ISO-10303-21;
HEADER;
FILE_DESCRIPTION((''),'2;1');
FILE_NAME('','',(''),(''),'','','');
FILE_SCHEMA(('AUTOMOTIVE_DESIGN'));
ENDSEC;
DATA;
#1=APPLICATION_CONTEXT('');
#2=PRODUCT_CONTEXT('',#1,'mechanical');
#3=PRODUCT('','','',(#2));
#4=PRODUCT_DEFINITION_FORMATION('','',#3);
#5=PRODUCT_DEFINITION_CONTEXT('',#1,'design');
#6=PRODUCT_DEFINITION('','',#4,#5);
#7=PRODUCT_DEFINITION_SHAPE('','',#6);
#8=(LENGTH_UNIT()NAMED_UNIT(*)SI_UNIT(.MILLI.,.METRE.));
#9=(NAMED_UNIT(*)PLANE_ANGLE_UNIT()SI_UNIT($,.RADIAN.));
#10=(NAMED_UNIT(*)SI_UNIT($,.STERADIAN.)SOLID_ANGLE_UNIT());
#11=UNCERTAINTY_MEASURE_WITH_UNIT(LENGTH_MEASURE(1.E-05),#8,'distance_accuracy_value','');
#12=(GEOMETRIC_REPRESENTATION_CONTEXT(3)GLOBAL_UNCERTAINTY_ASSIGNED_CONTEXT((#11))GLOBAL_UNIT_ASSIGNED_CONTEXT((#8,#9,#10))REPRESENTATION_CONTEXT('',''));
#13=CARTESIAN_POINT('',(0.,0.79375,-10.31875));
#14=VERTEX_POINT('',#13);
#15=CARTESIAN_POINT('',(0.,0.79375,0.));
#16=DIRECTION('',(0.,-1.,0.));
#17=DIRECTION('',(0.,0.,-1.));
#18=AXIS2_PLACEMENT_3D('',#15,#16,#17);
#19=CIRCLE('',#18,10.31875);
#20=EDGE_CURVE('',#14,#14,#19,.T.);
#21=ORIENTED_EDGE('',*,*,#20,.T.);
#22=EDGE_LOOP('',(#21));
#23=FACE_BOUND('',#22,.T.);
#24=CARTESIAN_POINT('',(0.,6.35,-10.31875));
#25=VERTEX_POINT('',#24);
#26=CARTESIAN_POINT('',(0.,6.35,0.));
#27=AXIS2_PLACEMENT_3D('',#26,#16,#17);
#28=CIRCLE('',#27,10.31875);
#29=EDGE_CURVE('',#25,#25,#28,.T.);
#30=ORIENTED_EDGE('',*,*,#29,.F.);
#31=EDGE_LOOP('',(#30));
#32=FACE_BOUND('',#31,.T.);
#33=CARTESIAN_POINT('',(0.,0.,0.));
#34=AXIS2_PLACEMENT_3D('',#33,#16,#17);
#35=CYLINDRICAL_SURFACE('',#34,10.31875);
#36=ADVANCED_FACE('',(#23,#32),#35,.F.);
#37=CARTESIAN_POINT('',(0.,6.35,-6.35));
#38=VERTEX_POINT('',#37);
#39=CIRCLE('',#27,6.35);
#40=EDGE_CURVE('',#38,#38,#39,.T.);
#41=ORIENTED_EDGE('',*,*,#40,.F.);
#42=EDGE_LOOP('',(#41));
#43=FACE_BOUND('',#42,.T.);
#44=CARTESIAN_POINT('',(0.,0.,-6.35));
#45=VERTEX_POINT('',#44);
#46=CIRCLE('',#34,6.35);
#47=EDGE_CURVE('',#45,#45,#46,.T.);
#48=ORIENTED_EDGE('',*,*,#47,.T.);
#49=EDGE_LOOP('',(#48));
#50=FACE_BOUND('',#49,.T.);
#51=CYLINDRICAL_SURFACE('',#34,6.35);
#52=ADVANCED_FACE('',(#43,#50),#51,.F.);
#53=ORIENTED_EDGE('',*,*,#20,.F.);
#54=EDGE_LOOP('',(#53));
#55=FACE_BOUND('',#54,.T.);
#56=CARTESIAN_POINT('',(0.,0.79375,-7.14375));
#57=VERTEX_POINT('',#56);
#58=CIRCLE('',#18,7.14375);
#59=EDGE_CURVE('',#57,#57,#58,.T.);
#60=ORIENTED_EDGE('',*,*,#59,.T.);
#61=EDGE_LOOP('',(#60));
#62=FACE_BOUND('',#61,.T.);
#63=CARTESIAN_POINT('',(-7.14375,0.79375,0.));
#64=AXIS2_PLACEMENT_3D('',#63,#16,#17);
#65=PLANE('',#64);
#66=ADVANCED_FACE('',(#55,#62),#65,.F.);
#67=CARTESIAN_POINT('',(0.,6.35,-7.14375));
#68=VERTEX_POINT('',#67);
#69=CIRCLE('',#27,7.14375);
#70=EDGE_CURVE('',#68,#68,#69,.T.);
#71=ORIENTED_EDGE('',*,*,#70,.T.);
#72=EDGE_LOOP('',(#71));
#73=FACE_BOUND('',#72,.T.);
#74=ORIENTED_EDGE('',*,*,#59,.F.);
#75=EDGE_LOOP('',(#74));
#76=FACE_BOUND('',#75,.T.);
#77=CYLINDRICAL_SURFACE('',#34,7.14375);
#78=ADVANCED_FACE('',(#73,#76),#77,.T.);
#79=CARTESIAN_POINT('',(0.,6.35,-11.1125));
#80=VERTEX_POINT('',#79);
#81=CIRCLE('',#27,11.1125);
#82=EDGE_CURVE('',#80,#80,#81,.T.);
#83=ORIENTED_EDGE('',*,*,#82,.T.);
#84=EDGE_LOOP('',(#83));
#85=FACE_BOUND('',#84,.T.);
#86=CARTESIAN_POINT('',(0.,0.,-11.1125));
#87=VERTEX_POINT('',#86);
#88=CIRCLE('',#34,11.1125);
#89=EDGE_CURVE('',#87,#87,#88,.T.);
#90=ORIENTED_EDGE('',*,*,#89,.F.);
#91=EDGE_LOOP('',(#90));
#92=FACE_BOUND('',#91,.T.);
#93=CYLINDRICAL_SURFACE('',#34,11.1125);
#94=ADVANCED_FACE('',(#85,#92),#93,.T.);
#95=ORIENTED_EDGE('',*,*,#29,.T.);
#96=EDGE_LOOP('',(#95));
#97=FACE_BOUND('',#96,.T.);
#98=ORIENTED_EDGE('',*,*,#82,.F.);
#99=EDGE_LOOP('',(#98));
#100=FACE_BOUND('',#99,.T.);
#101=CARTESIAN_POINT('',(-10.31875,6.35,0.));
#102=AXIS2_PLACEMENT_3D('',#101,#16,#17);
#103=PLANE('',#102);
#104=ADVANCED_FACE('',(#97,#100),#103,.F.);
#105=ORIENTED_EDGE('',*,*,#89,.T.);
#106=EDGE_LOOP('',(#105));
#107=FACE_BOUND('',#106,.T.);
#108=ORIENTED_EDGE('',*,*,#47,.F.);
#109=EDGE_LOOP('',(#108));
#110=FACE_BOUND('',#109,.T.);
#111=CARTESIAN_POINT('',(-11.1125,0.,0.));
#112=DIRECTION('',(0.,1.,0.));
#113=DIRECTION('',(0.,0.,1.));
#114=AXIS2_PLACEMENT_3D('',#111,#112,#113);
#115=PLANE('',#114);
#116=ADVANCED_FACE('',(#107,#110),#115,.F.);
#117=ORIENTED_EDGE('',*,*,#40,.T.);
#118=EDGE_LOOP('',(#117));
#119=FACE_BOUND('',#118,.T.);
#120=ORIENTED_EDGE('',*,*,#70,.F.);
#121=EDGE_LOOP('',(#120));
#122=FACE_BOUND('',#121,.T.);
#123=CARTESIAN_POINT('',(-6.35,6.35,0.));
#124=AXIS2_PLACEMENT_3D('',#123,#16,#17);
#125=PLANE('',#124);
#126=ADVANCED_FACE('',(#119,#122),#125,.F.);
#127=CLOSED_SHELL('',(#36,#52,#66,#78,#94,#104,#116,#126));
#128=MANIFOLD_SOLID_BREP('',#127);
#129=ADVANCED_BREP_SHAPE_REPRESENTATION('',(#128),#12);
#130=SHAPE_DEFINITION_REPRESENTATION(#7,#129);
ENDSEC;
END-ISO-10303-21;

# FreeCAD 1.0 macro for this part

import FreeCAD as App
import Part
import Sketcher

V = App.Vector
Q = App.Units.Quantity


def add_polygon(sketch, points):
    """Adds a closed chain of lines whose ends are joined by coincident constraints."""
    first, n = sketch.GeometryCount, len(points)
    for a, b in zip(points, points[1:] + points[:1]):
        sketch.addGeometry(Part.LineSegment(App.Vector(*a, 0), App.Vector(*b, 0)), False)
    for i in range(n):
        sketch.addConstraint(Sketcher.Constraint("Coincident", first + i, 2, first + (i + 1) % n, 1))

doc = App.newDocument("Part")
body = doc.addObject("PartDesign::Body", "Body")

sketch1 = body.newObject("Sketcher::SketchObject", "Sketch")
sketch1.AttachmentSupport = (doc.getObject("XY_Plane"), [""])
sketch1.MapMode = "FlatFace"
add_polygon(sketch1, [(-11.1, 6.3), (-11.1, 0), (-6.3, 0), (-6.3, 6.3), (-7.1, 6.3), (-7.1, 0.8), (-10.3, 0.8), (-10.3, 6.3)])
sketch1.addConstraint(Sketcher.Constraint("Vertical", 0))
sketch1.addConstraint(Sketcher.Constraint("Horizontal", 1))
sketch1.addConstraint(Sketcher.Constraint("Vertical", 2))
sketch1.addConstraint(Sketcher.Constraint("Horizontal", 3))
sketch1.addConstraint(Sketcher.Constraint("Vertical", 4))
sketch1.addConstraint(Sketcher.Constraint("Horizontal", 5))
sketch1.addConstraint(Sketcher.Constraint("Vertical", 6))
sketch1.addConstraint(Sketcher.Constraint("Horizontal", 7))
sketch1.addConstraint(Sketcher.Constraint("PointOnObject", 0, 2, -1))
sketch1.addConstraint(Sketcher.Constraint("Horizontal", 3, 2, 6, 2))
sketch1.addConstraint(Sketcher.Constraint("Equal", 3, 7))
sketch1.addConstraint(Sketcher.Constraint("DistanceY", 0, 2, 0, 1, Q("0.25 in")))
sketch1.addConstraint(Sketcher.Constraint("DistanceX", 1, 1, 1, 2, Q("0.1875 in")))
sketch1.addConstraint(Sketcher.Constraint("DistanceX", 3, 2, 3, 1, Q("0.03125 in")))
sketch1.addConstraint(Sketcher.Constraint("DistanceY", 4, 2, 4, 1, Q("0.21875 in")))
sketch1.addConstraint(Sketcher.Constraint("DistanceX", 1, 2, -1, 1, Q("0.25 in")))
revolution = body.newObject("PartDesign::Revolution", "Revolution")
revolution.Profile = sketch1
revolution.ReferenceAxis = (sketch1, ["V_Axis"])
revolution.Angle = 360

doc.recompute()
